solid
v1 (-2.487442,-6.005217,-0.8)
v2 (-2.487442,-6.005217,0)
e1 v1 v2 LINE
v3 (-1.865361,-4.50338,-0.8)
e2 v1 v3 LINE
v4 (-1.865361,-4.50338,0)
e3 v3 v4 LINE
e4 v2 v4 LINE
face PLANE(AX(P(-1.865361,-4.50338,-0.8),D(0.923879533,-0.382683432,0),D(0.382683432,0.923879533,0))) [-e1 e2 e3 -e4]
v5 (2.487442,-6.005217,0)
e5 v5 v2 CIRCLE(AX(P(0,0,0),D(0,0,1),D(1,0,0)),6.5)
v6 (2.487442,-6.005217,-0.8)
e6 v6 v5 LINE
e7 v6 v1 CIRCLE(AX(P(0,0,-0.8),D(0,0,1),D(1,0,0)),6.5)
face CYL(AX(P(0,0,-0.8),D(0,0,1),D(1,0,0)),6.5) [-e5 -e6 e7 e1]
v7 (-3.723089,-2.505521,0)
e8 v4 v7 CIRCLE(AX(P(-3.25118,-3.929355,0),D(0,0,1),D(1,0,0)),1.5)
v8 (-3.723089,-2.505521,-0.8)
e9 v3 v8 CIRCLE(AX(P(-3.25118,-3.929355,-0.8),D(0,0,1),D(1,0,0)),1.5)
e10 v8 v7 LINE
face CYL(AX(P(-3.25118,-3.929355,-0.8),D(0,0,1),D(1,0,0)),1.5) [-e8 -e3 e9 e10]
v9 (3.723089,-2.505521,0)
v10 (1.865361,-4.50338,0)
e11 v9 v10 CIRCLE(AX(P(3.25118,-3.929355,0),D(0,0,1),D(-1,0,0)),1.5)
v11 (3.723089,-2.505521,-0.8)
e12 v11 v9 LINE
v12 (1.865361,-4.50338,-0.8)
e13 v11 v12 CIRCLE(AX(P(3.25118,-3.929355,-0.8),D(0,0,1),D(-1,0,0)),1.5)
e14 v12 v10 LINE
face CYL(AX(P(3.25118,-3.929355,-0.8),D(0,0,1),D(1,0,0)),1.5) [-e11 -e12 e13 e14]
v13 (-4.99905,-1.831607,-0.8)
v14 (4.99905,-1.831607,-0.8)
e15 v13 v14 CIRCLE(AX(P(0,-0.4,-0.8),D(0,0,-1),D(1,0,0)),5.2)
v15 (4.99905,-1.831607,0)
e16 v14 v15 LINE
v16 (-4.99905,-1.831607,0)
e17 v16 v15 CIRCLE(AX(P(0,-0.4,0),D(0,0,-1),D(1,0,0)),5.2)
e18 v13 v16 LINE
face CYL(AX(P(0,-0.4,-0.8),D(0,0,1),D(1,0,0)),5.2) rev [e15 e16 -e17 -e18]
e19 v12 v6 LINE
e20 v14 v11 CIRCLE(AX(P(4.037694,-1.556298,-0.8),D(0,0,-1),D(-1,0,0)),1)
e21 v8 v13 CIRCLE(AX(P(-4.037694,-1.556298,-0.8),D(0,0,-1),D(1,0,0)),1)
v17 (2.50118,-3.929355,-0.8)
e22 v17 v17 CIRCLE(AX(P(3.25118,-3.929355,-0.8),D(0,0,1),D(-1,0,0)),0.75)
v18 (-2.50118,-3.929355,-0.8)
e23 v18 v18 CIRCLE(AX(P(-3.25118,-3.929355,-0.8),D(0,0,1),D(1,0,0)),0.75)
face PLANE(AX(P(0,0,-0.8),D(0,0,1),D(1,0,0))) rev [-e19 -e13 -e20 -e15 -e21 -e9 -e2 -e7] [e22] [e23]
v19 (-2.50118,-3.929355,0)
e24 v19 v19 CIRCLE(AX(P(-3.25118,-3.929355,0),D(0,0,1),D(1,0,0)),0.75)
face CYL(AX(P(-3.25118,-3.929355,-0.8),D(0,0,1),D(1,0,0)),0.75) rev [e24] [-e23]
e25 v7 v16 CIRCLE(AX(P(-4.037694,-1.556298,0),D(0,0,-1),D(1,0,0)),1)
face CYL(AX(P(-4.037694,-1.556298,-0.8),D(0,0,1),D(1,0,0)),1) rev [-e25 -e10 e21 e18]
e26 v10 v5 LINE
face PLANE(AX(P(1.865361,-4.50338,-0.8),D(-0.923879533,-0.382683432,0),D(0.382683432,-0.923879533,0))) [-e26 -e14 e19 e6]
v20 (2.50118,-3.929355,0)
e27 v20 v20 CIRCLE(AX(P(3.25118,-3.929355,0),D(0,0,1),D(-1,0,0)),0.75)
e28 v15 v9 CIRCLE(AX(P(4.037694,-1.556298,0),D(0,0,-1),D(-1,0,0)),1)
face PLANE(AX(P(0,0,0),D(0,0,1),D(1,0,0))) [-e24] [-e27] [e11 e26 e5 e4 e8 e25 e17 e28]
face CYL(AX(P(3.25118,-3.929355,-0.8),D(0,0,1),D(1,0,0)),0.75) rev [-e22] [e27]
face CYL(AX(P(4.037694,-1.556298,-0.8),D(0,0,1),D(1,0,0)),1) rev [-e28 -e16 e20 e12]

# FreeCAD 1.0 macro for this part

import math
import FreeCAD as App
import Part
import Sketcher
from FreeCAD import Vector
Q = App.Units.Quantity

doc = App.newDocument("Part")
body = doc.addObject("PartDesign::Body", "Body")

# Sketch on XY plane
sketch1 = doc.addObject("Sketcher::SketchObject", "Sketch")
body.addObject(sketch1)
sketch1.AttachmentSupport = (doc.XY_Plane, [""])
sketch1.MapMode = "FlatFace"
sketch1.addGeometry([
    Part.LineSegment(Vector(1.9, -4.5, 0), Vector(2.5, -6, 0)),  # 0
    Part.ArcOfCircle(Part.Circle(Vector(0, 0, 0), Vector(0, 0, 1), 6.5), math.radians(-68), math.radians(248)),  # 1
    Part.LineSegment(Vector(-2.5, -6, 0), Vector(-1.9, -4.5, 0)),  # 2
    Part.ArcOfCircle(Part.Circle(Vector(-3.3, -3.9, 0), Vector(0, 0, 1), 1.5), math.radians(-23), math.radians(108)),  # 3
    Part.ArcOfCircle(Part.Circle(Vector(-4, -1.6, 0), Vector(0, 0, 1), 1), math.radians(-164), math.radians(-72)),  # 4
    Part.ArcOfCircle(Part.Circle(Vector(0, -0.4, 0), Vector(0, 0, 1), 5.2), math.radians(-16), math.radians(196)),  # 5
    Part.ArcOfCircle(Part.Circle(Vector(4, -1.6, 0), Vector(0, 0, 1), 1), math.radians(-108), math.radians(-16)),  # 6
    Part.ArcOfCircle(Part.Circle(Vector(3.3, -3.9, 0), Vector(0, 0, 1), 1.5), math.radians(72), math.radians(203)),  # 7
    Part.Circle(Vector(-3.3, -3.9, 0), Vector(0, 0, 1), 0.8),  # 8
    Part.Circle(Vector(3.3, -3.9, 0), Vector(0, 0, 1), 0.8),  # 9
], False)
sketch1.addConstraint([
    Sketcher.Constraint("Coincident", 0, 2, 1, 1),
    Sketcher.Constraint("Coincident", 1, 2, 2, 1),
    Sketcher.Constraint("Tangent", 2, 2, 3, 1),
    Sketcher.Constraint("Tangent", 3, 2, 4, 2),
    Sketcher.Constraint("Tangent", 4, 1, 5, 2),
    Sketcher.Constraint("Tangent", 5, 1, 6, 2),
    Sketcher.Constraint("Tangent", 6, 1, 7, 1),
    Sketcher.Constraint("Tangent", 7, 2, 0, 1),
    Sketcher.Constraint("Coincident", 1, 3, -1, 1),
    Sketcher.Constraint("Coincident", 8, 3, 3, 3),
    Sketcher.Constraint("Coincident", 9, 3, 7, 3),
    Sketcher.Constraint("Equal", 4, 6),
    Sketcher.Constraint("Equal", 3, 7),
    Sketcher.Constraint("Equal", 8, 9),
    Sketcher.Constraint("Symmetric", 4, 3, 6, 3, -2),
    Sketcher.Constraint("Symmetric", 2, 2, 7, 2, -2),
    Sketcher.Constraint("Radius", 4, Q("1 mm")),
    Sketcher.Constraint("Diameter", 8, Q("1.5 mm")),
    Sketcher.Constraint("Radius", 1, Q("6.5 mm")),
    Sketcher.Constraint("Radius", 3, Q("1.5 mm")),
    Sketcher.Constraint("Radius", 5, Q("5.2 mm")),
    Sketcher.Constraint("Angle", 0, Q("-67.5 deg")),
    Sketcher.Constraint("DistanceY", 5, 3, -1, 1, Q("0.4 mm")),
    Sketcher.Constraint("DistanceY", 4, 3, -1, 1, Q("1.556298 mm")),
    Sketcher.Constraint("DistanceX", 3, 3, -1, 1, Q("3.25118 mm")),
])
pad1 = doc.addObject("PartDesign::Pad", "Pad")
body.addObject(pad1)
pad1.Profile = sketch1
pad1.Length = 0.8
pad1.Reversed = True

doc.recompute()
